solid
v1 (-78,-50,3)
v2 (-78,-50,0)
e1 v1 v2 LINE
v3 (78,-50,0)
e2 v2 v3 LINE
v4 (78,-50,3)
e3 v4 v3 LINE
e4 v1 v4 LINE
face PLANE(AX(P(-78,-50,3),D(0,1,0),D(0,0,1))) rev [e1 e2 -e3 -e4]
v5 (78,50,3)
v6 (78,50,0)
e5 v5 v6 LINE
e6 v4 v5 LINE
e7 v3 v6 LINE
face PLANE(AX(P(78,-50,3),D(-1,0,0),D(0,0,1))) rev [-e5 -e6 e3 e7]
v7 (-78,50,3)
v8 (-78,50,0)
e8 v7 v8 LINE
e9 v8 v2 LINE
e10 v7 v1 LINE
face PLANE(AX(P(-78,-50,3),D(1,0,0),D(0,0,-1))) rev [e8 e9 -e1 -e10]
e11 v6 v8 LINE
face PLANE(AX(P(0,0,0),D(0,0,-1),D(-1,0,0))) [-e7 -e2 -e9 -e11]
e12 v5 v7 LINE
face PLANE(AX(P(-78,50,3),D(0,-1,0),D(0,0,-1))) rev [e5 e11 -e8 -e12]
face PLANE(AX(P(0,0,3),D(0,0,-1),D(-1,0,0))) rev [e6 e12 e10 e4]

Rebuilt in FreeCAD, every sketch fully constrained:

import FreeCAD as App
import Part
import Sketcher
from FreeCAD import Vector


def add_polygon(sketch, points):
    """Adds a closed chain of lines whose ends are joined by coincident constraints."""
    first, n = sketch.GeometryCount, len(points)
    for a, b in zip(points, points[1:] + points[:1]):
        sketch.addGeometry(Part.LineSegment(App.Vector(*a, 0), App.Vector(*b, 0)), False)
    for i in range(n):
        sketch.addConstraint(Sketcher.Constraint("Coincident", first + i, 2, first + (i + 1) % n, 1))

doc = App.newDocument("Part")
body = doc.addObject("PartDesign::Body", "Body")

sketch1 = body.newObject("Sketcher::SketchObject", "Sketch")
sketch1.AttachmentSupport = (doc.getObject("XY_Plane"), [""])
sketch1.MapMode = "FlatFace"
add_polygon(sketch1, [(-78, 50), (-78, -50), (78, -50), (78, 50)])
sketch1.addConstraint([
    Sketcher.Constraint("Vertical", 0),
    Sketcher.Constraint("Horizontal", 1),
    Sketcher.Constraint("Vertical", 2),
    Sketcher.Constraint("Horizontal", 3),
    Sketcher.Constraint("Symmetric", 0, 2, 2, 2, -1, 1),
    Sketcher.Constraint("DistanceX", 1, 1, 1, 2, 156.0),
    Sketcher.Constraint("DistanceY", 0, 2, 0, 1, 100.0),
])
pad1 = body.newObject("PartDesign::Pad", "Pad")
pad1.Profile = sketch1
pad1.Length = 3

doc.recompute()
